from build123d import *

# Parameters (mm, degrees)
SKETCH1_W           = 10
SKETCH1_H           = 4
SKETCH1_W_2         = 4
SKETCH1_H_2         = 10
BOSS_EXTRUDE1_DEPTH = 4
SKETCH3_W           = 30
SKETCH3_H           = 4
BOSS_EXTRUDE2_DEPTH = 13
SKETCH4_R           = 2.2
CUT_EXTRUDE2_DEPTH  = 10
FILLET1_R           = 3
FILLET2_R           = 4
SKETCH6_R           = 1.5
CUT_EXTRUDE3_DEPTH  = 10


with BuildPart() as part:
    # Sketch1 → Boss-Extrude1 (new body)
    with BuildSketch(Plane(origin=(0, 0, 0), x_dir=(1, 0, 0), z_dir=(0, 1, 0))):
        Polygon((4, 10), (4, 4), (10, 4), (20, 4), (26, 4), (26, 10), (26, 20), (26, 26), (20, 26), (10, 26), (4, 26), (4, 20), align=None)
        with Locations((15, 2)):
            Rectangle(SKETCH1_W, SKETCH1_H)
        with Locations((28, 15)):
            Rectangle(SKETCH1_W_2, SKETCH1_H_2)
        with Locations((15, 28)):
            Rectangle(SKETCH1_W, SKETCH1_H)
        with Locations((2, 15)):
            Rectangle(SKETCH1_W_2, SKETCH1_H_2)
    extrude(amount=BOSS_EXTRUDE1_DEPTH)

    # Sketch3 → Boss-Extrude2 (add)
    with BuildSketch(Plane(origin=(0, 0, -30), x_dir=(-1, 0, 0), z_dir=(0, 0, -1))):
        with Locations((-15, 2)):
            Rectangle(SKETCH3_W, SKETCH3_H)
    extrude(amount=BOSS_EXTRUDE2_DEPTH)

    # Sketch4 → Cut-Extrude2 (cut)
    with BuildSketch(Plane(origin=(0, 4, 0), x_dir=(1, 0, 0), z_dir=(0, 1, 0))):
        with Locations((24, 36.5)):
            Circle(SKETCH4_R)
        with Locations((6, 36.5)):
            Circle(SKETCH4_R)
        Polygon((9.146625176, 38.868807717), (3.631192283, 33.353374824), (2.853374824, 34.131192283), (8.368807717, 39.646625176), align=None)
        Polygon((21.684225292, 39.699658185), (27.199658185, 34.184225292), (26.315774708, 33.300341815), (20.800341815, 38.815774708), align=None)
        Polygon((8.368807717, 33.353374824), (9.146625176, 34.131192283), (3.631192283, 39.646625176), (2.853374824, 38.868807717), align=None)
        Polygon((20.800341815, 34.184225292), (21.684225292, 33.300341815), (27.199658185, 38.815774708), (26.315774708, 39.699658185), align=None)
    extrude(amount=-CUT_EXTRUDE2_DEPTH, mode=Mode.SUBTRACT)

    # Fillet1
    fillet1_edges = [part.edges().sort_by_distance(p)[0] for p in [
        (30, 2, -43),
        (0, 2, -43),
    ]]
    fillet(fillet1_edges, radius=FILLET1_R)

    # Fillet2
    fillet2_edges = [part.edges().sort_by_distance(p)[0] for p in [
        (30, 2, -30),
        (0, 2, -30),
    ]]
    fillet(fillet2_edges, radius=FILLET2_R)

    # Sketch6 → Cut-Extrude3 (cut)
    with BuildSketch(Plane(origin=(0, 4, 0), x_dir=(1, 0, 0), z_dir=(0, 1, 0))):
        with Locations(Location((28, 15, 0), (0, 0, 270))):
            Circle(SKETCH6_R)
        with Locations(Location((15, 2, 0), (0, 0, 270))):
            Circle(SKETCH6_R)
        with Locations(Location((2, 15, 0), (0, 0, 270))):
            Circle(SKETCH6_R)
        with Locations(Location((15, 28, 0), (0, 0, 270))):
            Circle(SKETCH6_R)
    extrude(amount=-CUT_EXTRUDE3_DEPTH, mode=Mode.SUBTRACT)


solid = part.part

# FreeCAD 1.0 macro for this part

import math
import FreeCAD as App
import Part
import Sketcher

V = App.Vector


def edges_at(feature, points):
    """Names of the edges that pass closest to the given points."""
    edges = feature.Shape.Edges
    near = lambda p: min(range(len(edges)), key=lambda i: edges[i].distToShape(Part.Vertex(*p))[0])
    return sorted({f"Edge{near(p) + 1}" for p in points})


def add_polygon(sketch, points):
    """Adds a closed chain of lines whose ends are joined by coincident constraints."""
    first, n = sketch.GeometryCount, len(points)
    for a, b in zip(points, points[1:] + points[:1]):
        sketch.addGeometry(Part.LineSegment(App.Vector(*a, 0), App.Vector(*b, 0)), False)
    for i in range(n):
        sketch.addConstraint(Sketcher.Constraint("Coincident", first + i, 2, first + (i + 1) % n, 1))

doc = App.newDocument("Part")
body = doc.addObject("PartDesign::Body", "Body")

# Sketch on XZ plane
sketch1 = body.newObject("Sketcher::SketchObject", "Sketch")
sketch1.AttachmentSupport = (doc.getObject("XZ_Plane"), [""])
sketch1.MapMode = "FlatFace"
add_polygon(sketch1, [(4, -4), (10, -4), (10, 0), (20, 0), (20, -4), (26, -4), (26, -10), (30, -10), (30, -20), (26, -20), (26, -26), (20, -26), (20, -30), (10, -30), (10, -26), (4, -26), (4, -20), (0, -20), (0, -10), (4, -10)])  # lines 0-19
sketch1.addConstraint(Sketcher.Constraint("Horizontal", 0))
sketch1.addConstraint(Sketcher.Constraint("Vertical", 1))
sketch1.addConstraint(Sketcher.Constraint("Horizontal", 2))
sketch1.addConstraint(Sketcher.Constraint("Vertical", 3))
sketch1.addConstraint(Sketcher.Constraint("Horizontal", 4))
sketch1.addConstraint(Sketcher.Constraint("Vertical", 5))
sketch1.addConstraint(Sketcher.Constraint("Horizontal", 6))
sketch1.addConstraint(Sketcher.Constraint("Vertical", 7))
sketch1.addConstraint(Sketcher.Constraint("Horizontal", 8))
sketch1.addConstraint(Sketcher.Constraint("Vertical", 9))
sketch1.addConstraint(Sketcher.Constraint("Horizontal", 10))
sketch1.addConstraint(Sketcher.Constraint("Vertical", 11))
sketch1.addConstraint(Sketcher.Constraint("Horizontal", 12))
sketch1.addConstraint(Sketcher.Constraint("Vertical", 13))
sketch1.addConstraint(Sketcher.Constraint("Horizontal", 14))
sketch1.addConstraint(Sketcher.Constraint("Vertical", 15))
sketch1.addConstraint(Sketcher.Constraint("Horizontal", 16))
sketch1.addConstraint(Sketcher.Constraint("Vertical", 17))
sketch1.addConstraint(Sketcher.Constraint("Horizontal", 18))
sketch1.addConstraint(Sketcher.Constraint("Vertical", 19))
sketch1.addConstraint(Sketcher.Constraint("PointOnObject", 1, 2, -1))
sketch1.addConstraint(Sketcher.Constraint("PointOnObject", 16, 2, -2))
sketch1.addConstraint(Sketcher.Constraint("Horizontal", 0, 2, 3, 2))
sketch1.addConstraint(Sketcher.Constraint("Horizontal", 10, 2, 13, 2))
sketch1.addConstraint(Sketcher.Constraint("Horizontal", 8, 2, 15, 2))
sketch1.addConstraint(Sketcher.Constraint("Horizontal", 6, 2, 17, 2))
sketch1.addConstraint(Sketcher.Constraint("Vertical", 5, 2, 8, 2))
sketch1.addConstraint(Sketcher.Constraint("Vertical", 3, 2, 10, 2))
sketch1.addConstraint(Sketcher.Constraint("Vertical", 1, 2, 12, 2))
sketch1.addConstraint(Sketcher.Constraint("Vertical", 15, 2, 18, 2))
sketch1.addConstraint(Sketcher.Constraint("Equal", 0, 4))
sketch1.addConstraint(Sketcher.Constraint("Equal", 8, 16))
sketch1.addConstraint(Sketcher.Constraint("Equal", 18, 1))
sketch1.addConstraint(Sketcher.Constraint("Equal", 14, 5))
sketch1.addConstraint(Sketcher.Constraint("Equal", 12, 7))
sketch1.addConstraint(Sketcher.Constraint("Equal", 5, 9))
sketch1.addConstraint(Sketcher.Constraint("Equal", 3, 11))
sketch1.addConstraint(Sketcher.Constraint("DistanceX", 0, 1, 0, 2, 6.0))
sketch1.addConstraint(Sketcher.Constraint("DistanceX", 2, 1, 2, 2, 10.0))
sketch1.addConstraint(Sketcher.Constraint("DistanceX", 6, 1, 6, 2, 4.0))
pad1 = body.newObject("PartDesign::Pad", "Pad")
pad1.Profile = sketch1
pad1.Length = 4
pad1.Reversed = True

# Sketch on XY plane
sketch2 = body.newObject("Sketcher::SketchObject", "Sketch001")
sketch2.AttachmentSupport = (doc.getObject("XY_Plane"), [""])
sketch2.MapMode = "FlatFace"
sketch2.AttachmentOffset = App.Placement(V(0, 0, -30), App.Rotation())
add_polygon(sketch2, [(30, 4), (30, 0), (0, 0), (0, 4)])  # lines 0-3
sketch2.addConstraint(Sketcher.Constraint("Vertical", 0))
sketch2.addConstraint(Sketcher.Constraint("Horizontal", 1))
sketch2.addConstraint(Sketcher.Constraint("Vertical", 2))
sketch2.addConstraint(Sketcher.Constraint("Horizontal", 3))
sketch2.addConstraint(Sketcher.Constraint("Coincident", 1, 2, -1, 1))
sketch2.addConstraint(Sketcher.Constraint("DistanceX", 1, 2, 1, 1, 30.0))
sketch2.addConstraint(Sketcher.Constraint("DistanceY", 0, 2, 0, 1, 4.0))
pad2 = body.newObject("PartDesign::Pad", "Pad001")
pad2.Profile = sketch2
pad2.Length = 13
pad2.Reversed = True

# Sketch on XZ plane
sketch3 = body.newObject("Sketcher::SketchObject", "Sketch002")
sketch3.AttachmentSupport = (doc.getObject("XZ_Plane"), [""])
sketch3.MapMode = "FlatFace"
sketch3.AttachmentOffset = App.Placement(V(0, 0, -4), App.Rotation())
sketch3.addGeometry(Part.LineSegment(V(27.199658, -34.184225, 0), V(25.93348, -35.450403, 0)), False)
sketch3.addGeometry(Part.ArcOfCircle(Part.Circle(V(24, -36.5, 0), V(0, 0, 1), 2.2), math.radians(-28.495484), math.radians(28.495484)), False)
sketch3.addGeometry(Part.LineSegment(V(25.93348, -37.549597, 0), V(27.199658, -38.815775, 0)), False)
sketch3.addGeometry(Part.LineSegment(V(27.199658, -38.815775, 0), V(26.315775, -39.699658, 0)), False)
sketch3.addGeometry(Part.LineSegment(V(26.315775, -39.699658, 0), V(25.049597, -38.43348, 0)), False)
sketch3.addGeometry(Part.ArcOfCircle(Part.Circle(V(24, -36.5, 0), V(0, 0, 1), 2.2), math.radians(-118.495484), math.radians(-61.504516)), False)
sketch3.addGeometry(Part.LineSegment(V(22.950403, -38.43348, 0), V(21.684225, -39.699658, 0)), False)
sketch3.addGeometry(Part.LineSegment(V(21.684225, -39.699658, 0), V(20.800342, -38.815775, 0)), False)
sketch3.addGeometry(Part.LineSegment(V(20.800342, -38.815775, 0), V(22.06652, -37.549597, 0)), False)
sketch3.addGeometry(Part.ArcOfCircle(Part.Circle(V(24, -36.5, 0), V(0, 0, 1), 2.2), math.radians(151.504516), math.radians(208.495484)), False)
sketch3.addGeometry(Part.LineSegment(V(22.06652, -35.450403, 0), V(20.800342, -34.184225, 0)), False)
sketch3.addGeometry(Part.LineSegment(V(20.800342, -34.184225, 0), V(21.684225, -33.300342, 0)), False)
sketch3.addGeometry(Part.LineSegment(V(21.684225, -33.300342, 0), V(22.950403, -34.56652, 0)), False)
sketch3.addGeometry(Part.ArcOfCircle(Part.Circle(V(24, -36.5, 0), V(0, 0, 1), 2.2), math.radians(61.504516), math.radians(118.495484)), False)
sketch3.addGeometry(Part.LineSegment(V(25.049597, -34.56652, 0), V(26.315775, -33.300342, 0)), False)
sketch3.addGeometry(Part.LineSegment(V(26.315775, -33.300342, 0), V(27.199658, -34.184225, 0)), False)
sketch3.addGeometry(Part.LineSegment(V(3.631192, -33.353375, 0), V(4.882672, -34.604854, 0)), False)
sketch3.addGeometry(Part.ArcOfCircle(Part.Circle(V(6, -36.5, 0), V(0, 0, 1), 2.2), math.radians(59.477512), math.radians(120.522488)), False)
sketch3.addGeometry(Part.LineSegment(V(7.117328, -34.604854, 0), V(8.368808, -33.353375, 0)), False)
sketch3.addGeometry(Part.LineSegment(V(8.368808, -33.353375, 0), V(9.146625, -34.131192, 0)), False)
sketch3.addGeometry(Part.LineSegment(V(9.146625, -34.131192, 0), V(7.895146, -35.382672, 0)), False)
sketch3.addGeometry(Part.ArcOfCircle(Part.Circle(V(6, -36.5, 0), V(0, 0, 1), 2.2), math.radians(-30.522488), math.radians(30.522488)), False)
sketch3.addGeometry(Part.LineSegment(V(7.895146, -37.617328, 0), V(9.146625, -38.868808, 0)), False)
sketch3.addGeometry(Part.LineSegment(V(9.146625, -38.868808, 0), V(8.368808, -39.646625, 0)), False)
sketch3.addGeometry(Part.LineSegment(V(8.368808, -39.646625, 0), V(7.117328, -38.395146, 0)), False)
sketch3.addGeometry(Part.ArcOfCircle(Part.Circle(V(6, -36.5, 0), V(0, 0, 1), 2.2), math.radians(-120.522488), math.radians(-59.477512)), False)
sketch3.addGeometry(Part.LineSegment(V(4.882672, -38.395146, 0), V(3.631192, -39.646625, 0)), False)
sketch3.addGeometry(Part.LineSegment(V(3.631192, -39.646625, 0), V(2.853375, -38.868808, 0)), False)
sketch3.addGeometry(Part.LineSegment(V(2.853375, -38.868808, 0), V(4.104854, -37.617328, 0)), False)
sketch3.addGeometry(Part.ArcOfCircle(Part.Circle(V(6, -36.5, 0), V(0, 0, 1), 2.2), math.radians(149.477512), math.radians(210.522488)), False)
sketch3.addGeometry(Part.LineSegment(V(4.104854, -35.382672, 0), V(2.853375, -34.131192, 0)), False)
sketch3.addGeometry(Part.LineSegment(V(2.853375, -34.131192, 0), V(3.631192, -33.353375, 0)), False)
sketch3.addConstraint(Sketcher.Constraint("Coincident", 0, 2, 1, 2))
sketch3.addConstraint(Sketcher.Constraint("Coincident", 1, 1, 2, 1))
sketch3.addConstraint(Sketcher.Constraint("Coincident", 2, 2, 3, 1))
sketch3.addConstraint(Sketcher.Constraint("Coincident", 3, 2, 4, 1))
sketch3.addConstraint(Sketcher.Constraint("Coincident", 4, 2, 5, 2))
sketch3.addConstraint(Sketcher.Constraint("Coincident", 5, 1, 6, 1))
sketch3.addConstraint(Sketcher.Constraint("Coincident", 6, 2, 7, 1))
sketch3.addConstraint(Sketcher.Constraint("Coincident", 7, 2, 8, 1))
sketch3.addConstraint(Sketcher.Constraint("Coincident", 8, 2, 9, 2))
sketch3.addConstraint(Sketcher.Constraint("Coincident", 9, 1, 10, 1))
sketch3.addConstraint(Sketcher.Constraint("Coincident", 10, 2, 11, 1))
sketch3.addConstraint(Sketcher.Constraint("Coincident", 11, 2, 12, 1))
sketch3.addConstraint(Sketcher.Constraint("Coincident", 12, 2, 13, 2))
sketch3.addConstraint(Sketcher.Constraint("Coincident", 13, 1, 14, 1))
sketch3.addConstraint(Sketcher.Constraint("Coincident", 14, 2, 15, 1))
sketch3.addConstraint(Sketcher.Constraint("Coincident", 15, 2, 0, 1))
sketch3.addConstraint(Sketcher.Constraint("Coincident", 16, 2, 17, 2))
sketch3.addConstraint(Sketcher.Constraint("Coincident", 17, 1, 18, 1))
sketch3.addConstraint(Sketcher.Constraint("Coincident", 18, 2, 19, 1))
sketch3.addConstraint(Sketcher.Constraint("Coincident", 19, 2, 20, 1))
sketch3.addConstraint(Sketcher.Constraint("Coincident", 20, 2, 21, 2))
sketch3.addConstraint(Sketcher.Constraint("Coincident", 21, 1, 22, 1))
sketch3.addConstraint(Sketcher.Constraint("Coincident", 22, 2, 23, 1))
sketch3.addConstraint(Sketcher.Constraint("Coincident", 23, 2, 24, 1))
sketch3.addConstraint(Sketcher.Constraint("Coincident", 24, 2, 25, 2))
sketch3.addConstraint(Sketcher.Constraint("Coincident", 25, 1, 26, 1))
sketch3.addConstraint(Sketcher.Constraint("Coincident", 26, 2, 27, 1))
sketch3.addConstraint(Sketcher.Constraint("Coincident", 27, 2, 28, 1))
sketch3.addConstraint(Sketcher.Constraint("Coincident", 28, 2, 29, 2))
sketch3.addConstraint(Sketcher.Constraint("Coincident", 29, 1, 30, 1))
sketch3.addConstraint(Sketcher.Constraint("Coincident", 30, 2, 31, 1))
sketch3.addConstraint(Sketcher.Constraint("Coincident", 31, 2, 16, 1))
sketch3.addConstraint(Sketcher.Constraint("Coincident", 5, 3, 1, 3))
sketch3.addConstraint(Sketcher.Constraint("Coincident", 9, 3, 1, 3))
sketch3.addConstraint(Sketcher.Constraint("Coincident", 13, 3, 1, 3))
sketch3.addConstraint(Sketcher.Constraint("Coincident", 21, 3, 17, 3))
sketch3.addConstraint(Sketcher.Constraint("Coincident", 25, 3, 17, 3))
sketch3.addConstraint(Sketcher.Constraint("Coincident", 29, 3, 17, 3))
sketch3.addConstraint(Sketcher.Constraint("Equal", 1, 5))
sketch3.addConstraint(Sketcher.Constraint("Equal", 5, 9))
sketch3.addConstraint(Sketcher.Constraint("Equal", 9, 13))
sketch3.addConstraint(Sketcher.Constraint("Equal", 13, 17))
sketch3.addConstraint(Sketcher.Constraint("Equal", 17, 21))
sketch3.addConstraint(Sketcher.Constraint("Equal", 21, 25))
sketch3.addConstraint(Sketcher.Constraint("Equal", 25, 29))
sketch3.addConstraint(Sketcher.Constraint("Perpendicular", 0, 2))
sketch3.addConstraint(Sketcher.Constraint("Perpendicular", 2, 3))
sketch3.addConstraint(Sketcher.Constraint("Perpendicular", 3, 4))
sketch3.addConstraint(Sketcher.Constraint("Perpendicular", 4, 6))
sketch3.addConstraint(Sketcher.Constraint("Perpendicular", 6, 7))
sketch3.addConstraint(Sketcher.Constraint("Perpendicular", 7, 8))
sketch3.addConstraint(Sketcher.Constraint("Perpendicular", 8, 10))
sketch3.addConstraint(Sketcher.Constraint("Perpendicular", 10, 11))
sketch3.addConstraint(Sketcher.Constraint("Perpendicular", 11, 12))
sketch3.addConstraint(Sketcher.Constraint("Perpendicular", 12, 14))
sketch3.addConstraint(Sketcher.Constraint("Perpendicular", 14, 15))
sketch3.addConstraint(Sketcher.Constraint("Parallel", 15, 16))
sketch3.addConstraint(Sketcher.Constraint("Perpendicular", 16, 18))
sketch3.addConstraint(Sketcher.Constraint("Perpendicular", 18, 19))
sketch3.addConstraint(Sketcher.Constraint("Perpendicular", 19, 20))
sketch3.addConstraint(Sketcher.Constraint("Perpendicular", 20, 22))
sketch3.addConstraint(Sketcher.Constraint("Perpendicular", 22, 23))
sketch3.addConstraint(Sketcher.Constraint("Perpendicular", 23, 24))
sketch3.addConstraint(Sketcher.Constraint("Perpendicular", 24, 26))
sketch3.addConstraint(Sketcher.Constraint("Perpendicular", 26, 27))
sketch3.addConstraint(Sketcher.Constraint("Perpendicular", 27, 28))
sketch3.addConstraint(Sketcher.Constraint("Perpendicular", 28, 30))
sketch3.addConstraint(Sketcher.Constraint("Perpendicular", 30, 31))
sketch3.addConstraint(Sketcher.Constraint("Horizontal", 13, 3, 17, 3))
sketch3.addConstraint(Sketcher.Constraint("Horizontal", 4, 2, 5, 1))
sketch3.addConstraint(Sketcher.Constraint("Horizontal", 3, 2, 6, 2))
sketch3.addConstraint(Sketcher.Constraint("Horizontal", 2, 2, 7, 2))
sketch3.addConstraint(Sketcher.Constraint("Horizontal", 1, 1, 8, 2))
sketch3.addConstraint(Sketcher.Constraint("Horizontal", 0, 2, 9, 1))
sketch3.addConstraint(Sketcher.Constraint("Horizontal", 12, 2, 13, 1))
sketch3.addConstraint(Sketcher.Constraint("Horizontal", 11, 2, 14, 2))
sketch3.addConstraint(Sketcher.Constraint("Horizontal", 16, 2, 17, 1))
sketch3.addConstraint(Sketcher.Constraint("Horizontal", 24, 2, 25, 1))
sketch3.addConstraint(Sketcher.Constraint("Horizontal", 23, 2, 26, 2))
sketch3.addConstraint(Sketcher.Constraint("Horizontal", 22, 2, 27, 2))
sketch3.addConstraint(Sketcher.Constraint("Horizontal", 20, 2, 29, 1))
sketch3.addConstraint(Sketcher.Constraint("Horizontal", 19, 2, 30, 2))
sketch3.addConstraint(Sketcher.Constraint("Vertical", 0, 2, 1, 1))
sketch3.addConstraint(Sketcher.Constraint("Vertical", 7, 2, 10, 2))
sketch3.addConstraint(Sketcher.Constraint("Vertical", 6, 2, 11, 2))
sketch3.addConstraint(Sketcher.Constraint("Vertical", 20, 2, 21, 1))
sketch3.addConstraint(Sketcher.Constraint("Vertical", 19, 2, 22, 2))
sketch3.addConstraint(Sketcher.Constraint("Vertical", 18, 2, 23, 2))
sketch3.addConstraint(Sketcher.Constraint("Equal", 2, 4))
sketch3.addConstraint(Sketcher.Constraint("Equal", 18, 20))
sketch3.addConstraint(Sketcher.Constraint("Radius", 1, 2.2))
sketch3.addConstraint(Sketcher.Constraint("DistanceX", -1, 1, 1, 3, 24.0))
sketch3.addConstraint(Sketcher.Constraint("DistanceX", -1, 1, 17, 3, 6.0))
sketch3.addConstraint(Sketcher.Constraint("Distance", 19, 1.1))
sketch3.addConstraint(Sketcher.Constraint("DistanceY", 1, 3, -1, 1, 36.5))
sketch3.addConstraint(Sketcher.Constraint("Distance", 3, 1.25))
sketch3.addConstraint(Sketcher.Constraint("Distance", 16, 1.769859))
sketch3.addConstraint(Sketcher.Constraint("DistanceX", -1, 1, 2, 2, 27.199658))
pocket1 = body.newObject("PartDesign::Pocket", "Pocket")
pocket1.Profile = sketch3
pocket1.Length = 10
pocket1.Reversed = True
doc.recompute()

fillet = body.newObject("PartDesign::Fillet", "Fillet")
fillet.Base = (pocket1, edges_at(pocket1, [(30, 2, -43), (0, 2, -43)]))
fillet.Radius = 3
doc.recompute()

fillet2 = body.newObject("PartDesign::Fillet", "Fillet001")
fillet2.Base = (fillet, edges_at(fillet, [(30, 2, -30), (0, 2, -30)]))
fillet2.Radius = 4

# Sketch on XZ plane
sketch4 = body.newObject("Sketcher::SketchObject", "Sketch003")
sketch4.AttachmentSupport = (doc.getObject("XZ_Plane"), [""])
sketch4.MapMode = "FlatFace"
sketch4.AttachmentOffset = App.Placement(V(0, 0, -4), App.Rotation())
sketch4.addGeometry(Part.Circle(V(28, -15, 0), V(0, 0, 1), 1.5), False)
sketch4.addGeometry(Part.Circle(V(15, -2, 0), V(0, 0, 1), 1.5), False)
sketch4.addGeometry(Part.Circle(V(2, -15, 0), V(0, 0, 1), 1.5), False)
sketch4.addGeometry(Part.Circle(V(15, -28, 0), V(0, 0, 1), 1.5), False)
sketch4.addConstraint(Sketcher.Constraint("Equal", 0, 1))
sketch4.addConstraint(Sketcher.Constraint("Equal", 1, 2))
sketch4.addConstraint(Sketcher.Constraint("Equal", 2, 3))
sketch4.addConstraint(Sketcher.Constraint("Horizontal", 0, 3, 2, 3))
sketch4.addConstraint(Sketcher.Constraint("Vertical", 1, 3, 3, 3))
sketch4.addConstraint(Sketcher.Constraint("Diameter", 0, 3.0))
sketch4.addConstraint(Sketcher.Constraint("DistanceX", -1, 1, 0, 3, 28.0))
sketch4.addConstraint(Sketcher.Constraint("DistanceY", 0, 3, -1, 1, 15.0))
sketch4.addConstraint(Sketcher.Constraint("DistanceX", -1, 1, 1, 3, 15.0))
sketch4.addConstraint(Sketcher.Constraint("DistanceY", 1, 3, -1, 1, 2.0))
sketch4.addConstraint(Sketcher.Constraint("DistanceX", -1, 1, 2, 3, 2.0))
sketch4.addConstraint(Sketcher.Constraint("DistanceY", 3, 3, -1, 1, 28.0))
pocket2 = body.newObject("PartDesign::Pocket", "Pocket001")
pocket2.Profile = sketch4
pocket2.Length = 10
pocket2.Reversed = True

doc.recompute()
